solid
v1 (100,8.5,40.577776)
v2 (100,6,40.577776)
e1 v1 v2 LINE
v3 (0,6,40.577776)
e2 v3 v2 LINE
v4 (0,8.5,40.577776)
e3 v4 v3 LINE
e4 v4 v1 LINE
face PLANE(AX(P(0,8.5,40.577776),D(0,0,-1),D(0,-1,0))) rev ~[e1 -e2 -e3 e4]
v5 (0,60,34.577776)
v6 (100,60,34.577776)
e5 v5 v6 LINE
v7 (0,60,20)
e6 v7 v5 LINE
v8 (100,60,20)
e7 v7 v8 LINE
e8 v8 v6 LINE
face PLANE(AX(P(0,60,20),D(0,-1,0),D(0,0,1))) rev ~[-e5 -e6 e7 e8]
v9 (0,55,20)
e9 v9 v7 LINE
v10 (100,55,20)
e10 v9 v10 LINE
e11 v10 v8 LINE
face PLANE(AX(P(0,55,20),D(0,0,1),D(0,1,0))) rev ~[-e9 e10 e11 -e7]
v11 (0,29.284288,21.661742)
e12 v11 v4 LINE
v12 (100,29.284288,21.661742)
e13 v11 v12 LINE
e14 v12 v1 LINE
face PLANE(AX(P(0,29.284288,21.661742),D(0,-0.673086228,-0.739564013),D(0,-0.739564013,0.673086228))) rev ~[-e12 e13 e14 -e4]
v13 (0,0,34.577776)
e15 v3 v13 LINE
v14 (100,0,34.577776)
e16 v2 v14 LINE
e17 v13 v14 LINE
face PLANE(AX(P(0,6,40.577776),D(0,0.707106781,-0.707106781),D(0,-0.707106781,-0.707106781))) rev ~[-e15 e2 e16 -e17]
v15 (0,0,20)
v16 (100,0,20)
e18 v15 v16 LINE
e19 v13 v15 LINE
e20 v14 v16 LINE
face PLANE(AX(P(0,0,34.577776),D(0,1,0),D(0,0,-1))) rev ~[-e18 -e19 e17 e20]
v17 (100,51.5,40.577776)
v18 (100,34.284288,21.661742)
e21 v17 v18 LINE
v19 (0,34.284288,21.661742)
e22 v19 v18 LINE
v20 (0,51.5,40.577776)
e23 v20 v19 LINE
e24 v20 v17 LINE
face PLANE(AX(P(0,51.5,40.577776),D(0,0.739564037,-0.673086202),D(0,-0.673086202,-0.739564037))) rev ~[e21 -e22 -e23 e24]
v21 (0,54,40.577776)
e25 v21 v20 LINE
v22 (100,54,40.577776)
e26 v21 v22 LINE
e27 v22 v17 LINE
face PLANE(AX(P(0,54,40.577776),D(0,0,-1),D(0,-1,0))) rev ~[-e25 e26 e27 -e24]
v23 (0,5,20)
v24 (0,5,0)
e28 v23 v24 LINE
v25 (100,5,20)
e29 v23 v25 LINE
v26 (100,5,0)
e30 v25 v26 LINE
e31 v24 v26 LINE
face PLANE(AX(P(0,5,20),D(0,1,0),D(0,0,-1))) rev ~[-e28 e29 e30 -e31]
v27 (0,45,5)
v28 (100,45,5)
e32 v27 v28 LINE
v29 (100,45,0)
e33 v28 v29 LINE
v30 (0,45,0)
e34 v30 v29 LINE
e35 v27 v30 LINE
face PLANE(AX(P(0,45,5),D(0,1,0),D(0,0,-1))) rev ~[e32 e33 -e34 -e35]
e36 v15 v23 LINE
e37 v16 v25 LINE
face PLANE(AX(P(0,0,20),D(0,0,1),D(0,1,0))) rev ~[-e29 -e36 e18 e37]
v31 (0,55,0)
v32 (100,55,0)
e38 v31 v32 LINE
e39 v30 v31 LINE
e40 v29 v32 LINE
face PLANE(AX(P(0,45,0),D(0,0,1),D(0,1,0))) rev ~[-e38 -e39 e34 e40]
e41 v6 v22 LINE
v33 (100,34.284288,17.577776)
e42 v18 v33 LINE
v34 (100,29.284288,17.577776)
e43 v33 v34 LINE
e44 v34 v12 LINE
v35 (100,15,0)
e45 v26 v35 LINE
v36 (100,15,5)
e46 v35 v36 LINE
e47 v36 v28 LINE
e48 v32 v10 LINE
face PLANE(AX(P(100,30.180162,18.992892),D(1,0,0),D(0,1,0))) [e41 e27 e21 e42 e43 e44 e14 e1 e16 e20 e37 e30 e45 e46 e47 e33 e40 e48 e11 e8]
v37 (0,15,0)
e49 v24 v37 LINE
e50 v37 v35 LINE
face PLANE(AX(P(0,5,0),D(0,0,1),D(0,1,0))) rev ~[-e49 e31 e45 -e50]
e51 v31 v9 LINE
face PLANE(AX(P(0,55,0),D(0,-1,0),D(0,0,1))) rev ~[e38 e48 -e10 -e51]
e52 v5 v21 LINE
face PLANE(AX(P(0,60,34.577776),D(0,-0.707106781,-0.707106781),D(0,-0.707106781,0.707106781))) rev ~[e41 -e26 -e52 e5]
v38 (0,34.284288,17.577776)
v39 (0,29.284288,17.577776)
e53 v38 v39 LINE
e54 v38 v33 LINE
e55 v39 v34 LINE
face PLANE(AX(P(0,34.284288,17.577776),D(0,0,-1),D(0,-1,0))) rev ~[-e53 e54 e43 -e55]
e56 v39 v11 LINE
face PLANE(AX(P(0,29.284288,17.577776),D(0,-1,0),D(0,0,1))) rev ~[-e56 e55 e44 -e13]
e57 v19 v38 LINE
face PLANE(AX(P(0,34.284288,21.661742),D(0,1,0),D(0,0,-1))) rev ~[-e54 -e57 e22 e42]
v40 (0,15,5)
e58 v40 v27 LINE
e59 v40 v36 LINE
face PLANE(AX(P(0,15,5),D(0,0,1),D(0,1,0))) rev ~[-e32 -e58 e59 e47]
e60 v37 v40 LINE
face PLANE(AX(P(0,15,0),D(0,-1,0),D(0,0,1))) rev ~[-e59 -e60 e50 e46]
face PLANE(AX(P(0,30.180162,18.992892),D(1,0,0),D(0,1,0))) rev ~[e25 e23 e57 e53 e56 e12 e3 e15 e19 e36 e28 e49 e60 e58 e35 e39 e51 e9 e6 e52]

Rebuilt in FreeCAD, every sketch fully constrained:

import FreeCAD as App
import Part
import Sketcher

doc = App.newDocument("Part")
body = doc.addObject("PartDesign::Body", "Body")

# Sketch on YZ plane
sketch1 = body.newObject("Sketcher::SketchObject", "Sketch")
sketch1.AttachmentSupport = (doc.getObject("YZ_Plane"), [""])
sketch1.MapMode = "FlatFace"
sketch1.addGeometry(Part.LineSegment(App.Vector(0, 34.577776, 0), App.Vector(0, 20, 0)), False)
sketch1.addGeometry(Part.LineSegment(App.Vector(0, 20, 0), App.Vector(5, 20, 0)), False)
sketch1.addGeometry(Part.LineSegment(App.Vector(5, 20, 0), App.Vector(5, 0, 0)), False)
sketch1.addGeometry(Part.LineSegment(App.Vector(5, 0, 0), App.Vector(15, 0, 0)), False)
sketch1.addGeometry(Part.LineSegment(App.Vector(15, 0, 0), App.Vector(15, 5, 0)), False)
sketch1.addGeometry(Part.LineSegment(App.Vector(15, 5, 0), App.Vector(45, 5, 0)), False)
sketch1.addGeometry(Part.LineSegment(App.Vector(45, 5, 0), App.Vector(45, 0, 0)), False)
sketch1.addGeometry(Part.LineSegment(App.Vector(45, 0, 0), App.Vector(55, 0, 0)), False)
sketch1.addGeometry(Part.LineSegment(App.Vector(55, 0, 0), App.Vector(55, 20, 0)), False)
sketch1.addGeometry(Part.LineSegment(App.Vector(55, 20, 0), App.Vector(60, 20, 0)), False)
sketch1.addGeometry(Part.LineSegment(App.Vector(60, 20, 0), App.Vector(60, 34.577776, 0)), False)
sketch1.addGeometry(Part.LineSegment(App.Vector(60, 34.577776, 0), App.Vector(54, 40.577776, 0)), False)
sketch1.addGeometry(Part.LineSegment(App.Vector(54, 40.577776, 0), App.Vector(51.5, 40.577776, 0)), False)
sketch1.addGeometry(Part.LineSegment(App.Vector(51.5, 40.577776, 0), App.Vector(34.284288, 21.661742, 0)), False)
sketch1.addGeometry(Part.LineSegment(App.Vector(34.284288, 21.661742, 0), App.Vector(34.284288, 17.577776, 0)), False)
sketch1.addGeometry(Part.LineSegment(App.Vector(34.284288, 17.577776, 0), App.Vector(29.284288, 17.577776, 0)), False)
sketch1.addGeometry(Part.LineSegment(App.Vector(29.284288, 17.577776, 0), App.Vector(29.284288, 21.661742, 0)), False)
sketch1.addGeometry(Part.LineSegment(App.Vector(29.284288, 21.661742, 0), App.Vector(8.5, 40.577776, 0)), False)
sketch1.addGeometry(Part.LineSegment(App.Vector(8.5, 40.577776, 0), App.Vector(6, 40.577776, 0)), False)
sketch1.addGeometry(Part.LineSegment(App.Vector(6, 40.577776, 0), App.Vector(0, 34.577776, 0)), False)
sketch1.addConstraint(Sketcher.Constraint("Coincident", 0, 2, 1, 1))
sketch1.addConstraint(Sketcher.Constraint("Coincident", 1, 2, 2, 1))
sketch1.addConstraint(Sketcher.Constraint("Coincident", 2, 2, 3, 1))
sketch1.addConstraint(Sketcher.Constraint("Coincident", 3, 2, 4, 1))
sketch1.addConstraint(Sketcher.Constraint("Coincident", 4, 2, 5, 1))
sketch1.addConstraint(Sketcher.Constraint("Coincident", 5, 2, 6, 1))
sketch1.addConstraint(Sketcher.Constraint("Coincident", 6, 2, 7, 1))
sketch1.addConstraint(Sketcher.Constraint("Coincident", 7, 2, 8, 1))
sketch1.addConstraint(Sketcher.Constraint("Coincident", 8, 2, 9, 1))
sketch1.addConstraint(Sketcher.Constraint("Coincident", 9, 2, 10, 1))
sketch1.addConstraint(Sketcher.Constraint("Coincident", 10, 2, 11, 1))
sketch1.addConstraint(Sketcher.Constraint("Coincident", 11, 2, 12, 1))
sketch1.addConstraint(Sketcher.Constraint("Coincident", 12, 2, 13, 1))
sketch1.addConstraint(Sketcher.Constraint("Coincident", 13, 2, 14, 1))
sketch1.addConstraint(Sketcher.Constraint("Coincident", 14, 2, 15, 1))
sketch1.addConstraint(Sketcher.Constraint("Coincident", 15, 2, 16, 1))
sketch1.addConstraint(Sketcher.Constraint("Coincident", 16, 2, 17, 1))
sketch1.addConstraint(Sketcher.Constraint("Coincident", 17, 2, 18, 1))
sketch1.addConstraint(Sketcher.Constraint("Coincident", 18, 2, 19, 1))
sketch1.addConstraint(Sketcher.Constraint("Coincident", 19, 2, 0, 1))
sketch1.addConstraint(Sketcher.Constraint("Vertical", 0))
sketch1.addConstraint(Sketcher.Constraint("Horizontal", 1))
sketch1.addConstraint(Sketcher.Constraint("Vertical", 2))
sketch1.addConstraint(Sketcher.Constraint("Horizontal", 3))
sketch1.addConstraint(Sketcher.Constraint("Vertical", 4))
sketch1.addConstraint(Sketcher.Constraint("Horizontal", 5))
sketch1.addConstraint(Sketcher.Constraint("Vertical", 6))
sketch1.addConstraint(Sketcher.Constraint("Horizontal", 7))
sketch1.addConstraint(Sketcher.Constraint("Vertical", 8))
sketch1.addConstraint(Sketcher.Constraint("Horizontal", 9))
sketch1.addConstraint(Sketcher.Constraint("Vertical", 10))
sketch1.addConstraint(Sketcher.Constraint("Horizontal", 12))
sketch1.addConstraint(Sketcher.Constraint("Vertical", 14))
sketch1.addConstraint(Sketcher.Constraint("Horizontal", 15))
sketch1.addConstraint(Sketcher.Constraint("Vertical", 16))
sketch1.addConstraint(Sketcher.Constraint("Horizontal", 18))
sketch1.addConstraint(Sketcher.Constraint("PointOnObject", 0, 2, -2))
sketch1.addConstraint(Sketcher.Constraint("PointOnObject", 2, 2, -1))
sketch1.addConstraint(Sketcher.Constraint("PointOnObject", 6, 2, -1))
sketch1.addConstraint(Sketcher.Constraint("Perpendicular", 13, 17))
sketch1.addConstraint(Sketcher.Constraint("Perpendicular", 11, 19))
sketch1.addConstraint(Sketcher.Constraint("Horizontal", 1, 2, 8, 2))
sketch1.addConstraint(Sketcher.Constraint("Horizontal", 13, 2, 16, 2))
sketch1.addConstraint(Sketcher.Constraint("Horizontal", 12, 2, 17, 2))
sketch1.addConstraint(Sketcher.Constraint("Horizontal", 10, 2, 19, 2))
sketch1.addConstraint(Sketcher.Constraint("Equal", 3, 7))
sketch1.addConstraint(Sketcher.Constraint("Equal", 1, 9))
sketch1.addConstraint(Sketcher.Constraint("Equal", 9, 15))
sketch1.addConstraint(Sketcher.Constraint("Equal", 12, 18))
sketch1.addConstraint(Sketcher.Constraint("Equal", 15, 4))
sketch1.addConstraint(Sketcher.Constraint("Equal", 11, 19))
sketch1.addConstraint(Sketcher.Constraint("DistanceX", 1, 1, 1, 2, 5.0))
sketch1.addConstraint(Sketcher.Constraint("DistanceX", 3, 1, 3, 2, 10.0))
sketch1.addConstraint(Sketcher.Constraint("DistanceX", 5, 1, 5, 2, 30.0))
sketch1.addConstraint(Sketcher.Constraint("DistanceY", 2, 2, 2, 1, 20.0))
sketch1.addConstraint(Sketcher.Constraint("DistanceX", 12, 2, 12, 1, 2.5))
sketch1.addConstraint(Sketcher.Constraint("DistanceX", -1, 1, 11, 2, 54.0))
sketch1.addConstraint(Sketcher.Constraint("DistanceY", 15, 2, 17, 2, 23.0))
sketch1.addConstraint(Sketcher.Constraint("DistanceY", 0, 2, 0, 1, 14.577776))
sketch1.addConstraint(Sketcher.Constraint("DistanceY", 14, 2, 14, 1, 4.083966))
pad1 = body.newObject("PartDesign::Pad", "Pad")
pad1.Profile = sketch1
pad1.Length = 100

doc.recompute()
